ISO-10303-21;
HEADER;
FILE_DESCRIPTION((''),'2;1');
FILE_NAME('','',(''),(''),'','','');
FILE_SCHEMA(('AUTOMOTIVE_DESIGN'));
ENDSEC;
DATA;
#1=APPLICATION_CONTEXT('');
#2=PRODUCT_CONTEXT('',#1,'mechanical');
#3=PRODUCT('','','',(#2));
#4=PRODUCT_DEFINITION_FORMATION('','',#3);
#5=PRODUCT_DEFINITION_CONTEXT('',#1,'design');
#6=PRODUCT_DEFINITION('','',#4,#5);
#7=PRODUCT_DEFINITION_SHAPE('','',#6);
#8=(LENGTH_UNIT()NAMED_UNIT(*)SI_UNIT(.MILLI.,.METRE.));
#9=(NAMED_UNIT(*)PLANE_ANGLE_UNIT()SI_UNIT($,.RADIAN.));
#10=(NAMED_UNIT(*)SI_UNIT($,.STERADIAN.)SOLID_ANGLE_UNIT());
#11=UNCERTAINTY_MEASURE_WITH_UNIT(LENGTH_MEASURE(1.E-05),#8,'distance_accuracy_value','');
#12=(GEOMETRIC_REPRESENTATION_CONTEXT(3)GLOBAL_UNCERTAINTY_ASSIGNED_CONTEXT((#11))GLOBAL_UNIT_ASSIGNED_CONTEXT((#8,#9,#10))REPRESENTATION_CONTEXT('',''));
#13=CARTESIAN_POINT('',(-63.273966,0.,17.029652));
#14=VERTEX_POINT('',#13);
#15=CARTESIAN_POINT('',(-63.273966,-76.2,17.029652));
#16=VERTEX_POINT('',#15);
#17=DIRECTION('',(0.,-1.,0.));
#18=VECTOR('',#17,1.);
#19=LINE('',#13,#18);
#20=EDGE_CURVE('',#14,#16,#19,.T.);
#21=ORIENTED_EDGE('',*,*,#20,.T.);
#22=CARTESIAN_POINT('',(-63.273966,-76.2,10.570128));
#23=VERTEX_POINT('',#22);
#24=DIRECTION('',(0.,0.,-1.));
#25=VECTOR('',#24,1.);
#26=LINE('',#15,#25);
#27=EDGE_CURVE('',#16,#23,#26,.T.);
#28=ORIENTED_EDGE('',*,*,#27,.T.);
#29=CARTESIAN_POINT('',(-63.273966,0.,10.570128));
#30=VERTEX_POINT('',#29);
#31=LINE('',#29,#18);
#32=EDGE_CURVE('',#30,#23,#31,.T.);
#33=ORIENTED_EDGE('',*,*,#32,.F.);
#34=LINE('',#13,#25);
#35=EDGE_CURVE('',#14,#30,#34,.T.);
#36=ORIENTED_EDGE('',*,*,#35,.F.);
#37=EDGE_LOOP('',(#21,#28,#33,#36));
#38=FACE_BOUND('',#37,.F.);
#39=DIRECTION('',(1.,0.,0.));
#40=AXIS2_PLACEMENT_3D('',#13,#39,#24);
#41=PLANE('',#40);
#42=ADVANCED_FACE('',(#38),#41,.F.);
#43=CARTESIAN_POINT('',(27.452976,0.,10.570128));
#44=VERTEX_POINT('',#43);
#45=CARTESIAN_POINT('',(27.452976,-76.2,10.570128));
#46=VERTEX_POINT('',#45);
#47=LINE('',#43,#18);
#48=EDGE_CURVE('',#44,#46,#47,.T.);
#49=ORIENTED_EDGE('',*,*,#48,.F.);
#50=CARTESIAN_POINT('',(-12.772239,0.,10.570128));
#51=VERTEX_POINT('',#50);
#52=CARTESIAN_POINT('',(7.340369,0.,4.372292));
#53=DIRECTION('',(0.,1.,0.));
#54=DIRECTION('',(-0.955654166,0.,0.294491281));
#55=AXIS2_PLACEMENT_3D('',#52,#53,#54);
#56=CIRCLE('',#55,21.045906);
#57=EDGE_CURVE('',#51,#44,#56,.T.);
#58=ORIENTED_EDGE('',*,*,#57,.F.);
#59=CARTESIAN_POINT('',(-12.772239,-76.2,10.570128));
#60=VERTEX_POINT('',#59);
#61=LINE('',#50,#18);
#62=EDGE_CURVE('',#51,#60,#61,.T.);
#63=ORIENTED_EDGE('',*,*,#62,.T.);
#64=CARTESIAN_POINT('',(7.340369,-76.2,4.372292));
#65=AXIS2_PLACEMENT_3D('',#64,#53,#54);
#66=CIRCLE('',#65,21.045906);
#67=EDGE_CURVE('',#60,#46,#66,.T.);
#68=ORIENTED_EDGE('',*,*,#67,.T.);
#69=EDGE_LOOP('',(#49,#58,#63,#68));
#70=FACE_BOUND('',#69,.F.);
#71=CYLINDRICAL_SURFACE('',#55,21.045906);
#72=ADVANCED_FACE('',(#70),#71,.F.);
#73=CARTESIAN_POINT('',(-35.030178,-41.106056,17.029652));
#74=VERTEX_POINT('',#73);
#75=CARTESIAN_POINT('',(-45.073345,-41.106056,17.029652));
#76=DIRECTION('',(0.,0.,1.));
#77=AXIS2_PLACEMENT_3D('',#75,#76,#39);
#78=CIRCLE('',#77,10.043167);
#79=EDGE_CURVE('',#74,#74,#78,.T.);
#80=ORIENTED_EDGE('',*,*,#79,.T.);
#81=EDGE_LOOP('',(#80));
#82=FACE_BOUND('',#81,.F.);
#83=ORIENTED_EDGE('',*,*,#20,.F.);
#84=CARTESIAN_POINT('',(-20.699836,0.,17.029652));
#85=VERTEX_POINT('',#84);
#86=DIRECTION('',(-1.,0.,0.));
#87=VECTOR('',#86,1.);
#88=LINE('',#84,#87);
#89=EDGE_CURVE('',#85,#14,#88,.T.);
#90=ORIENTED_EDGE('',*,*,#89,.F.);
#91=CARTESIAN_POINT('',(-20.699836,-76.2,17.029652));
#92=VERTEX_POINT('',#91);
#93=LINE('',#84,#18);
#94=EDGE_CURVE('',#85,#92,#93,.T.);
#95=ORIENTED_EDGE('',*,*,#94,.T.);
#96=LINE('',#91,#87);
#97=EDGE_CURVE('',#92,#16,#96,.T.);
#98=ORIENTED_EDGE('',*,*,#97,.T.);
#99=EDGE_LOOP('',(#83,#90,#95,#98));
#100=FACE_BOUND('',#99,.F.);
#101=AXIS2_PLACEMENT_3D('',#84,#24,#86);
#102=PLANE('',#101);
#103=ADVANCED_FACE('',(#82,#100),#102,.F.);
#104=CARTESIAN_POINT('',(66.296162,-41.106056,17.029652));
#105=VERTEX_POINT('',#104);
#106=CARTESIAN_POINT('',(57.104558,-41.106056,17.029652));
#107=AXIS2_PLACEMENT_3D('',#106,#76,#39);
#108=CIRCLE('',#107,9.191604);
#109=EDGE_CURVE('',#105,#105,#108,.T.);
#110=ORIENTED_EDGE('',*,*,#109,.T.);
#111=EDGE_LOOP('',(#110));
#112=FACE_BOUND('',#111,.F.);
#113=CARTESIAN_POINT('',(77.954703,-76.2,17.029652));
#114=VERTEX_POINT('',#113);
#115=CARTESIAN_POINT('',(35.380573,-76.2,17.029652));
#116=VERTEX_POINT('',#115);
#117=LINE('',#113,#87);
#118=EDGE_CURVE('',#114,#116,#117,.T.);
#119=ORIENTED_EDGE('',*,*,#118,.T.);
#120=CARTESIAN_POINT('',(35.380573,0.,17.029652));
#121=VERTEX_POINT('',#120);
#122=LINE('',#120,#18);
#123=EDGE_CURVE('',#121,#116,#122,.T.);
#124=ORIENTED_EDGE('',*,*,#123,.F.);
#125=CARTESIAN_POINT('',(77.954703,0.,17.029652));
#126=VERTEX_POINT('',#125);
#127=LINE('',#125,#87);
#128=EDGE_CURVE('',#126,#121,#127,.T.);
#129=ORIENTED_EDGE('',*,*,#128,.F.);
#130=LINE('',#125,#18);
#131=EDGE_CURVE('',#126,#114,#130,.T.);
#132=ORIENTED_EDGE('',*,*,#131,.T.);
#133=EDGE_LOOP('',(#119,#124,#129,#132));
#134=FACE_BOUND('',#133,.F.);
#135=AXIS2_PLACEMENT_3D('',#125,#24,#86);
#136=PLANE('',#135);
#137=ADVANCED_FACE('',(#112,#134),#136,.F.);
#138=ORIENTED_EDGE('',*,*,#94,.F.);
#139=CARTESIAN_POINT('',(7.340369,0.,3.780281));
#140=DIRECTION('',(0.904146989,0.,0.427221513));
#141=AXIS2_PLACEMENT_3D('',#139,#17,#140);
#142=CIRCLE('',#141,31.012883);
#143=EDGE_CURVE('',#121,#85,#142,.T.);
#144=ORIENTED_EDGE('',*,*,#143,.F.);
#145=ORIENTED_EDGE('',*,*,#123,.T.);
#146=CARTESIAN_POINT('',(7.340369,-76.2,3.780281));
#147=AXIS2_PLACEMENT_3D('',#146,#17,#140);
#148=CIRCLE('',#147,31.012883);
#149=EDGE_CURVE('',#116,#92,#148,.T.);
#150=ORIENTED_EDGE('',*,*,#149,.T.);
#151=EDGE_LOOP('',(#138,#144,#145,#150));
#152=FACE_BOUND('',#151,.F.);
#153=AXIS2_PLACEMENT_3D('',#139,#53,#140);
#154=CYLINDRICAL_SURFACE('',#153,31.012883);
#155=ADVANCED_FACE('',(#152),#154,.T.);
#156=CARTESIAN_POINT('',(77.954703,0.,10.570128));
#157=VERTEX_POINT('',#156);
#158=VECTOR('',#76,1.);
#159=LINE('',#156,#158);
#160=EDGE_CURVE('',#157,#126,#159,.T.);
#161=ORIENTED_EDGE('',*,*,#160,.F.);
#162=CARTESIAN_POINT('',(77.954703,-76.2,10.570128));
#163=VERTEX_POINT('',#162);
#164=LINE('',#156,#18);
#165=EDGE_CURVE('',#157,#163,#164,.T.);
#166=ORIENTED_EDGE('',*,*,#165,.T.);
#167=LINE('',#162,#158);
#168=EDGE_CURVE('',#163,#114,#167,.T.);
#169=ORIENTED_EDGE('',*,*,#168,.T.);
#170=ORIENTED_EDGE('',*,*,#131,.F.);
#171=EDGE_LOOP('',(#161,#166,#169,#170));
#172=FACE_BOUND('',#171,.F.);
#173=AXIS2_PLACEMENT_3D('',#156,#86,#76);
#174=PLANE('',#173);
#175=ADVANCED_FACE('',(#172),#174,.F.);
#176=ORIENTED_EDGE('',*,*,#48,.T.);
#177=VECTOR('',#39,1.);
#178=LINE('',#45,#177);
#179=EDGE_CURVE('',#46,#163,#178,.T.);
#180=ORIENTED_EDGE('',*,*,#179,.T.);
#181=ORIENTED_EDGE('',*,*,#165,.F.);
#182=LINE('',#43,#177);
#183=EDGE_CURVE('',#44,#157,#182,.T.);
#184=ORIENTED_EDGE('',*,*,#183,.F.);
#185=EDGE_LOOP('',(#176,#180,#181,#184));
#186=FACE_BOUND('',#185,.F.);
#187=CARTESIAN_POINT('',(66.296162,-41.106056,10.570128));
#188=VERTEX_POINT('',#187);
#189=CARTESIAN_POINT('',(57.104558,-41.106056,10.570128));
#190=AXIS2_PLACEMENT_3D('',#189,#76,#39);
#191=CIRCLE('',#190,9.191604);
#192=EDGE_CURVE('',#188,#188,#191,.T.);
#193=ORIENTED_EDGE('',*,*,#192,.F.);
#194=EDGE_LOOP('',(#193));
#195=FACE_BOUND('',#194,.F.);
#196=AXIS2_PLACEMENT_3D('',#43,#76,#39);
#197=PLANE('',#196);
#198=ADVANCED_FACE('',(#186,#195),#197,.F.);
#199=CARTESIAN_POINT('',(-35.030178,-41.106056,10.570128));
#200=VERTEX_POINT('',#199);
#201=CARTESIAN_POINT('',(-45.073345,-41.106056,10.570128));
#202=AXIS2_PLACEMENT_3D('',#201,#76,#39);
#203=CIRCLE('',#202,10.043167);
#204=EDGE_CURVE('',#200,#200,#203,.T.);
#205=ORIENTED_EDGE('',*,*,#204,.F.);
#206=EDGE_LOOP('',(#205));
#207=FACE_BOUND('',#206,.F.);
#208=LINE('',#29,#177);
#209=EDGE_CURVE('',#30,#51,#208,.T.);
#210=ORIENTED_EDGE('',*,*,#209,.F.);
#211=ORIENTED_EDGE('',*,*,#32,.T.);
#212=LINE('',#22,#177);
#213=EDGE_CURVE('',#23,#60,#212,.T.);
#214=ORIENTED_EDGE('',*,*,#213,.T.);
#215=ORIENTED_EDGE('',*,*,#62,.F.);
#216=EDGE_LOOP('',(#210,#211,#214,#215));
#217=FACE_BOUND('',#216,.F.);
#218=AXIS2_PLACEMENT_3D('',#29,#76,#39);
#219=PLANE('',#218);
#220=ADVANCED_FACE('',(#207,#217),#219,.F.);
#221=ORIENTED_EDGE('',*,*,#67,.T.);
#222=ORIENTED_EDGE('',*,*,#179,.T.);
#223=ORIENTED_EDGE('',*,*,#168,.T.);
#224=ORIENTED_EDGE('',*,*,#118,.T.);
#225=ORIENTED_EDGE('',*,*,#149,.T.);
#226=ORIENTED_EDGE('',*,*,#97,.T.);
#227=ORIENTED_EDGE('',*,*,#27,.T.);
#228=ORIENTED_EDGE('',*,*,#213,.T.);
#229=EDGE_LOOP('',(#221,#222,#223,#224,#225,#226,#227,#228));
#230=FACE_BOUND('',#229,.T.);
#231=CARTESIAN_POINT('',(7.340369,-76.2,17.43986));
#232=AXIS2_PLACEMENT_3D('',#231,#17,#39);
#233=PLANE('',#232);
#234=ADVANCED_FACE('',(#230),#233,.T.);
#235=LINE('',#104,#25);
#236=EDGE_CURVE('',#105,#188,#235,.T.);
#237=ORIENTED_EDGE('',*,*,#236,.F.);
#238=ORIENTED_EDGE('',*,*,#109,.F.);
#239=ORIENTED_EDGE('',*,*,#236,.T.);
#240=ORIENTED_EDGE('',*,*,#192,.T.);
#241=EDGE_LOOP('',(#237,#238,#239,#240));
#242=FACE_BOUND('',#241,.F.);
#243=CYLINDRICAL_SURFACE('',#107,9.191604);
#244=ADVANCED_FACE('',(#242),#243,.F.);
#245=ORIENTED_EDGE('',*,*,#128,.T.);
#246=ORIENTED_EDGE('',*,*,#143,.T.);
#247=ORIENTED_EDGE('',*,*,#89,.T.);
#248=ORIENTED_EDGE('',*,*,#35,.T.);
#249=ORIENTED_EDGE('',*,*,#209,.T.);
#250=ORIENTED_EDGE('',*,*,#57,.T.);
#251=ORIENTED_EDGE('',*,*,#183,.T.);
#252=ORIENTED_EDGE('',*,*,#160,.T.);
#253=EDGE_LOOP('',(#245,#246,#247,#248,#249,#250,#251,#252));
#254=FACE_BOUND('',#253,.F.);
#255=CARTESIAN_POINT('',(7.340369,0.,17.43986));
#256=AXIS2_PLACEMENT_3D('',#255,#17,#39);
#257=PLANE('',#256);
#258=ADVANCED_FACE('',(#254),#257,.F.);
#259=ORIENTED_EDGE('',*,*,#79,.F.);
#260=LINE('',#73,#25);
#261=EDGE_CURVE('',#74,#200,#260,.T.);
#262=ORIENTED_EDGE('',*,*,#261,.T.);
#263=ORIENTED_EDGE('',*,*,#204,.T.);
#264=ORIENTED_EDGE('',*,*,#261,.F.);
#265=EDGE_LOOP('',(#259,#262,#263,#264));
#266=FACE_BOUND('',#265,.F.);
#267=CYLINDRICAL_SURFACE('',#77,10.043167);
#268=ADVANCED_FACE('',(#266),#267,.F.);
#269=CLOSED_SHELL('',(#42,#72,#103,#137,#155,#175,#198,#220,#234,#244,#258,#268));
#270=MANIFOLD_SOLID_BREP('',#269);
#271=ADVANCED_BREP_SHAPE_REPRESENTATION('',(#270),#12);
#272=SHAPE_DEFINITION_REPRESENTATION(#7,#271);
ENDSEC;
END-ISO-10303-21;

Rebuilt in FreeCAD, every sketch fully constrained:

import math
import FreeCAD as App
import Part
import Sketcher
Q = App.Units.Quantity

doc = App.newDocument("Part")
body = doc.addObject("PartDesign::Body", "Body")

# Sketch on XZ plane
sketch1 = body.newObject("Sketcher::SketchObject", "Sketch")
sketch1.AttachmentSupport = (doc.getObject("XZ_Plane"), [""])
sketch1.MapMode = "FlatFace"
sketch1.addGeometry([
    Part.LineSegment(App.Vector(-63.273966, 17.029652, 0), App.Vector(-63.273966, 10.570128, 0)),  # 0
    Part.LineSegment(App.Vector(-63.273966, 10.570128, 0), App.Vector(-12.772239, 10.570128, 0)),  # 1
    Part.ArcOfCircle(Part.Circle(App.Vector(7.340369, 4.372292, 0), App.Vector(0, 0, 1), 21.045906), math.radians(17.127035), math.radians(162.872965)),  # 2
    Part.LineSegment(App.Vector(27.452976, 10.570128, 0), App.Vector(77.954703, 10.570128, 0)),  # 3
    Part.LineSegment(App.Vector(77.954703, 10.570128, 0), App.Vector(77.954703, 17.029652, 0)),  # 4
    Part.LineSegment(App.Vector(77.954703, 17.029652, 0), App.Vector(35.380573, 17.029652, 0)),  # 5
    Part.ArcOfCircle(Part.Circle(App.Vector(7.340369, 3.780281, 0), App.Vector(0, 0, 1), 31.012883), math.radians(25.291359), math.radians(154.708641)),  # 6
    Part.LineSegment(App.Vector(-20.699836, 17.029652, 0), App.Vector(-63.273966, 17.029652, 0)),  # 7
], False)
sketch1.addConstraint([
    Sketcher.Constraint("Coincident", 0, 2, 1, 1),
    Sketcher.Constraint("Coincident", 1, 2, 2, 2),
    Sketcher.Constraint("Coincident", 2, 1, 3, 1),
    Sketcher.Constraint("Coincident", 3, 2, 4, 1),
    Sketcher.Constraint("Coincident", 4, 2, 5, 1),
    Sketcher.Constraint("Coincident", 5, 2, 6, 1),
    Sketcher.Constraint("Coincident", 6, 2, 7, 1),
    Sketcher.Constraint("Coincident", 7, 2, 0, 1),
    Sketcher.Constraint("Vertical", 0),
    Sketcher.Constraint("Horizontal", 1),
    Sketcher.Constraint("Horizontal", 3),
    Sketcher.Constraint("Vertical", 4),
    Sketcher.Constraint("Horizontal", 5),
    Sketcher.Constraint("Horizontal", 7),
    Sketcher.Constraint("Horizontal", 1, 2, 2, 1),
    Sketcher.Constraint("Horizontal", 5, 2, 6, 2),
    Sketcher.Constraint("Vertical", 2, 3, 6, 3),
    Sketcher.Constraint("Equal", 1, 3),
    Sketcher.Constraint("Radius", 2, Q("21.045906 mm")),
    Sketcher.Constraint("Radius", 6, Q("31.012883 mm")),
    Sketcher.Constraint("DistanceX", 5, 2, 5, 1, Q("42.57413 mm")),
    Sketcher.Constraint("DistanceX", 1, 1, 1, 2, Q("50.501727 mm")),
    Sketcher.Constraint("DistanceY", 0, 2, 0, 1, Q("6.459524 mm")),
    Sketcher.Constraint("DistanceX", -1, 1, 2, 3, Q("7.340369 mm")),
    Sketcher.Constraint("DistanceY", -1, 1, 6, 3, Q("3.780281 mm")),
    Sketcher.Constraint("DistanceX", 1, 2, -1, 1, Q("12.772239 mm")),
])
pad1 = body.newObject("PartDesign::Pad", "Pad")
pad1.Profile = sketch1
pad1.Length = Q("3 in")

# Sketch on XY plane
sketch2 = body.newObject("Sketcher::SketchObject", "Sketch001")
sketch2.AttachmentSupport = (doc.getObject("XY_Plane"), [""])
sketch2.MapMode = "FlatFace"
sketch2.AttachmentOffset = App.Placement(App.Vector(0, 0, 17.029652), App.Rotation())
sketch2.addGeometry([
    Part.Circle(App.Vector(-45.073345, -41.106056, 0), App.Vector(0, 0, 1), 10.043167),
    Part.Circle(App.Vector(57.104558, -41.106056, 0), App.Vector(0, 0, 1), 9.191604),
], False)
sketch2.addConstraint([
    Sketcher.Constraint("Horizontal", 0, 3, 1, 3),
    Sketcher.Constraint("Diameter", 1, Q("18.383208 mm")),
    Sketcher.Constraint("Diameter", 0, Q("20.086334 mm")),
    Sketcher.Constraint("DistanceX", 0, 3, -1, 1, Q("45.073345 mm")),
    Sketcher.Constraint("DistanceY", 0, 3, -1, 1, Q("41.106056 mm")),
    Sketcher.Constraint("DistanceX", -1, 1, 1, 3, Q("57.104558 mm")),
])
pocket1 = body.newObject("PartDesign::Pocket", "Pocket")
pocket1.Profile = sketch2
pocket1.Length = Q("1 in")

doc.recompute()
